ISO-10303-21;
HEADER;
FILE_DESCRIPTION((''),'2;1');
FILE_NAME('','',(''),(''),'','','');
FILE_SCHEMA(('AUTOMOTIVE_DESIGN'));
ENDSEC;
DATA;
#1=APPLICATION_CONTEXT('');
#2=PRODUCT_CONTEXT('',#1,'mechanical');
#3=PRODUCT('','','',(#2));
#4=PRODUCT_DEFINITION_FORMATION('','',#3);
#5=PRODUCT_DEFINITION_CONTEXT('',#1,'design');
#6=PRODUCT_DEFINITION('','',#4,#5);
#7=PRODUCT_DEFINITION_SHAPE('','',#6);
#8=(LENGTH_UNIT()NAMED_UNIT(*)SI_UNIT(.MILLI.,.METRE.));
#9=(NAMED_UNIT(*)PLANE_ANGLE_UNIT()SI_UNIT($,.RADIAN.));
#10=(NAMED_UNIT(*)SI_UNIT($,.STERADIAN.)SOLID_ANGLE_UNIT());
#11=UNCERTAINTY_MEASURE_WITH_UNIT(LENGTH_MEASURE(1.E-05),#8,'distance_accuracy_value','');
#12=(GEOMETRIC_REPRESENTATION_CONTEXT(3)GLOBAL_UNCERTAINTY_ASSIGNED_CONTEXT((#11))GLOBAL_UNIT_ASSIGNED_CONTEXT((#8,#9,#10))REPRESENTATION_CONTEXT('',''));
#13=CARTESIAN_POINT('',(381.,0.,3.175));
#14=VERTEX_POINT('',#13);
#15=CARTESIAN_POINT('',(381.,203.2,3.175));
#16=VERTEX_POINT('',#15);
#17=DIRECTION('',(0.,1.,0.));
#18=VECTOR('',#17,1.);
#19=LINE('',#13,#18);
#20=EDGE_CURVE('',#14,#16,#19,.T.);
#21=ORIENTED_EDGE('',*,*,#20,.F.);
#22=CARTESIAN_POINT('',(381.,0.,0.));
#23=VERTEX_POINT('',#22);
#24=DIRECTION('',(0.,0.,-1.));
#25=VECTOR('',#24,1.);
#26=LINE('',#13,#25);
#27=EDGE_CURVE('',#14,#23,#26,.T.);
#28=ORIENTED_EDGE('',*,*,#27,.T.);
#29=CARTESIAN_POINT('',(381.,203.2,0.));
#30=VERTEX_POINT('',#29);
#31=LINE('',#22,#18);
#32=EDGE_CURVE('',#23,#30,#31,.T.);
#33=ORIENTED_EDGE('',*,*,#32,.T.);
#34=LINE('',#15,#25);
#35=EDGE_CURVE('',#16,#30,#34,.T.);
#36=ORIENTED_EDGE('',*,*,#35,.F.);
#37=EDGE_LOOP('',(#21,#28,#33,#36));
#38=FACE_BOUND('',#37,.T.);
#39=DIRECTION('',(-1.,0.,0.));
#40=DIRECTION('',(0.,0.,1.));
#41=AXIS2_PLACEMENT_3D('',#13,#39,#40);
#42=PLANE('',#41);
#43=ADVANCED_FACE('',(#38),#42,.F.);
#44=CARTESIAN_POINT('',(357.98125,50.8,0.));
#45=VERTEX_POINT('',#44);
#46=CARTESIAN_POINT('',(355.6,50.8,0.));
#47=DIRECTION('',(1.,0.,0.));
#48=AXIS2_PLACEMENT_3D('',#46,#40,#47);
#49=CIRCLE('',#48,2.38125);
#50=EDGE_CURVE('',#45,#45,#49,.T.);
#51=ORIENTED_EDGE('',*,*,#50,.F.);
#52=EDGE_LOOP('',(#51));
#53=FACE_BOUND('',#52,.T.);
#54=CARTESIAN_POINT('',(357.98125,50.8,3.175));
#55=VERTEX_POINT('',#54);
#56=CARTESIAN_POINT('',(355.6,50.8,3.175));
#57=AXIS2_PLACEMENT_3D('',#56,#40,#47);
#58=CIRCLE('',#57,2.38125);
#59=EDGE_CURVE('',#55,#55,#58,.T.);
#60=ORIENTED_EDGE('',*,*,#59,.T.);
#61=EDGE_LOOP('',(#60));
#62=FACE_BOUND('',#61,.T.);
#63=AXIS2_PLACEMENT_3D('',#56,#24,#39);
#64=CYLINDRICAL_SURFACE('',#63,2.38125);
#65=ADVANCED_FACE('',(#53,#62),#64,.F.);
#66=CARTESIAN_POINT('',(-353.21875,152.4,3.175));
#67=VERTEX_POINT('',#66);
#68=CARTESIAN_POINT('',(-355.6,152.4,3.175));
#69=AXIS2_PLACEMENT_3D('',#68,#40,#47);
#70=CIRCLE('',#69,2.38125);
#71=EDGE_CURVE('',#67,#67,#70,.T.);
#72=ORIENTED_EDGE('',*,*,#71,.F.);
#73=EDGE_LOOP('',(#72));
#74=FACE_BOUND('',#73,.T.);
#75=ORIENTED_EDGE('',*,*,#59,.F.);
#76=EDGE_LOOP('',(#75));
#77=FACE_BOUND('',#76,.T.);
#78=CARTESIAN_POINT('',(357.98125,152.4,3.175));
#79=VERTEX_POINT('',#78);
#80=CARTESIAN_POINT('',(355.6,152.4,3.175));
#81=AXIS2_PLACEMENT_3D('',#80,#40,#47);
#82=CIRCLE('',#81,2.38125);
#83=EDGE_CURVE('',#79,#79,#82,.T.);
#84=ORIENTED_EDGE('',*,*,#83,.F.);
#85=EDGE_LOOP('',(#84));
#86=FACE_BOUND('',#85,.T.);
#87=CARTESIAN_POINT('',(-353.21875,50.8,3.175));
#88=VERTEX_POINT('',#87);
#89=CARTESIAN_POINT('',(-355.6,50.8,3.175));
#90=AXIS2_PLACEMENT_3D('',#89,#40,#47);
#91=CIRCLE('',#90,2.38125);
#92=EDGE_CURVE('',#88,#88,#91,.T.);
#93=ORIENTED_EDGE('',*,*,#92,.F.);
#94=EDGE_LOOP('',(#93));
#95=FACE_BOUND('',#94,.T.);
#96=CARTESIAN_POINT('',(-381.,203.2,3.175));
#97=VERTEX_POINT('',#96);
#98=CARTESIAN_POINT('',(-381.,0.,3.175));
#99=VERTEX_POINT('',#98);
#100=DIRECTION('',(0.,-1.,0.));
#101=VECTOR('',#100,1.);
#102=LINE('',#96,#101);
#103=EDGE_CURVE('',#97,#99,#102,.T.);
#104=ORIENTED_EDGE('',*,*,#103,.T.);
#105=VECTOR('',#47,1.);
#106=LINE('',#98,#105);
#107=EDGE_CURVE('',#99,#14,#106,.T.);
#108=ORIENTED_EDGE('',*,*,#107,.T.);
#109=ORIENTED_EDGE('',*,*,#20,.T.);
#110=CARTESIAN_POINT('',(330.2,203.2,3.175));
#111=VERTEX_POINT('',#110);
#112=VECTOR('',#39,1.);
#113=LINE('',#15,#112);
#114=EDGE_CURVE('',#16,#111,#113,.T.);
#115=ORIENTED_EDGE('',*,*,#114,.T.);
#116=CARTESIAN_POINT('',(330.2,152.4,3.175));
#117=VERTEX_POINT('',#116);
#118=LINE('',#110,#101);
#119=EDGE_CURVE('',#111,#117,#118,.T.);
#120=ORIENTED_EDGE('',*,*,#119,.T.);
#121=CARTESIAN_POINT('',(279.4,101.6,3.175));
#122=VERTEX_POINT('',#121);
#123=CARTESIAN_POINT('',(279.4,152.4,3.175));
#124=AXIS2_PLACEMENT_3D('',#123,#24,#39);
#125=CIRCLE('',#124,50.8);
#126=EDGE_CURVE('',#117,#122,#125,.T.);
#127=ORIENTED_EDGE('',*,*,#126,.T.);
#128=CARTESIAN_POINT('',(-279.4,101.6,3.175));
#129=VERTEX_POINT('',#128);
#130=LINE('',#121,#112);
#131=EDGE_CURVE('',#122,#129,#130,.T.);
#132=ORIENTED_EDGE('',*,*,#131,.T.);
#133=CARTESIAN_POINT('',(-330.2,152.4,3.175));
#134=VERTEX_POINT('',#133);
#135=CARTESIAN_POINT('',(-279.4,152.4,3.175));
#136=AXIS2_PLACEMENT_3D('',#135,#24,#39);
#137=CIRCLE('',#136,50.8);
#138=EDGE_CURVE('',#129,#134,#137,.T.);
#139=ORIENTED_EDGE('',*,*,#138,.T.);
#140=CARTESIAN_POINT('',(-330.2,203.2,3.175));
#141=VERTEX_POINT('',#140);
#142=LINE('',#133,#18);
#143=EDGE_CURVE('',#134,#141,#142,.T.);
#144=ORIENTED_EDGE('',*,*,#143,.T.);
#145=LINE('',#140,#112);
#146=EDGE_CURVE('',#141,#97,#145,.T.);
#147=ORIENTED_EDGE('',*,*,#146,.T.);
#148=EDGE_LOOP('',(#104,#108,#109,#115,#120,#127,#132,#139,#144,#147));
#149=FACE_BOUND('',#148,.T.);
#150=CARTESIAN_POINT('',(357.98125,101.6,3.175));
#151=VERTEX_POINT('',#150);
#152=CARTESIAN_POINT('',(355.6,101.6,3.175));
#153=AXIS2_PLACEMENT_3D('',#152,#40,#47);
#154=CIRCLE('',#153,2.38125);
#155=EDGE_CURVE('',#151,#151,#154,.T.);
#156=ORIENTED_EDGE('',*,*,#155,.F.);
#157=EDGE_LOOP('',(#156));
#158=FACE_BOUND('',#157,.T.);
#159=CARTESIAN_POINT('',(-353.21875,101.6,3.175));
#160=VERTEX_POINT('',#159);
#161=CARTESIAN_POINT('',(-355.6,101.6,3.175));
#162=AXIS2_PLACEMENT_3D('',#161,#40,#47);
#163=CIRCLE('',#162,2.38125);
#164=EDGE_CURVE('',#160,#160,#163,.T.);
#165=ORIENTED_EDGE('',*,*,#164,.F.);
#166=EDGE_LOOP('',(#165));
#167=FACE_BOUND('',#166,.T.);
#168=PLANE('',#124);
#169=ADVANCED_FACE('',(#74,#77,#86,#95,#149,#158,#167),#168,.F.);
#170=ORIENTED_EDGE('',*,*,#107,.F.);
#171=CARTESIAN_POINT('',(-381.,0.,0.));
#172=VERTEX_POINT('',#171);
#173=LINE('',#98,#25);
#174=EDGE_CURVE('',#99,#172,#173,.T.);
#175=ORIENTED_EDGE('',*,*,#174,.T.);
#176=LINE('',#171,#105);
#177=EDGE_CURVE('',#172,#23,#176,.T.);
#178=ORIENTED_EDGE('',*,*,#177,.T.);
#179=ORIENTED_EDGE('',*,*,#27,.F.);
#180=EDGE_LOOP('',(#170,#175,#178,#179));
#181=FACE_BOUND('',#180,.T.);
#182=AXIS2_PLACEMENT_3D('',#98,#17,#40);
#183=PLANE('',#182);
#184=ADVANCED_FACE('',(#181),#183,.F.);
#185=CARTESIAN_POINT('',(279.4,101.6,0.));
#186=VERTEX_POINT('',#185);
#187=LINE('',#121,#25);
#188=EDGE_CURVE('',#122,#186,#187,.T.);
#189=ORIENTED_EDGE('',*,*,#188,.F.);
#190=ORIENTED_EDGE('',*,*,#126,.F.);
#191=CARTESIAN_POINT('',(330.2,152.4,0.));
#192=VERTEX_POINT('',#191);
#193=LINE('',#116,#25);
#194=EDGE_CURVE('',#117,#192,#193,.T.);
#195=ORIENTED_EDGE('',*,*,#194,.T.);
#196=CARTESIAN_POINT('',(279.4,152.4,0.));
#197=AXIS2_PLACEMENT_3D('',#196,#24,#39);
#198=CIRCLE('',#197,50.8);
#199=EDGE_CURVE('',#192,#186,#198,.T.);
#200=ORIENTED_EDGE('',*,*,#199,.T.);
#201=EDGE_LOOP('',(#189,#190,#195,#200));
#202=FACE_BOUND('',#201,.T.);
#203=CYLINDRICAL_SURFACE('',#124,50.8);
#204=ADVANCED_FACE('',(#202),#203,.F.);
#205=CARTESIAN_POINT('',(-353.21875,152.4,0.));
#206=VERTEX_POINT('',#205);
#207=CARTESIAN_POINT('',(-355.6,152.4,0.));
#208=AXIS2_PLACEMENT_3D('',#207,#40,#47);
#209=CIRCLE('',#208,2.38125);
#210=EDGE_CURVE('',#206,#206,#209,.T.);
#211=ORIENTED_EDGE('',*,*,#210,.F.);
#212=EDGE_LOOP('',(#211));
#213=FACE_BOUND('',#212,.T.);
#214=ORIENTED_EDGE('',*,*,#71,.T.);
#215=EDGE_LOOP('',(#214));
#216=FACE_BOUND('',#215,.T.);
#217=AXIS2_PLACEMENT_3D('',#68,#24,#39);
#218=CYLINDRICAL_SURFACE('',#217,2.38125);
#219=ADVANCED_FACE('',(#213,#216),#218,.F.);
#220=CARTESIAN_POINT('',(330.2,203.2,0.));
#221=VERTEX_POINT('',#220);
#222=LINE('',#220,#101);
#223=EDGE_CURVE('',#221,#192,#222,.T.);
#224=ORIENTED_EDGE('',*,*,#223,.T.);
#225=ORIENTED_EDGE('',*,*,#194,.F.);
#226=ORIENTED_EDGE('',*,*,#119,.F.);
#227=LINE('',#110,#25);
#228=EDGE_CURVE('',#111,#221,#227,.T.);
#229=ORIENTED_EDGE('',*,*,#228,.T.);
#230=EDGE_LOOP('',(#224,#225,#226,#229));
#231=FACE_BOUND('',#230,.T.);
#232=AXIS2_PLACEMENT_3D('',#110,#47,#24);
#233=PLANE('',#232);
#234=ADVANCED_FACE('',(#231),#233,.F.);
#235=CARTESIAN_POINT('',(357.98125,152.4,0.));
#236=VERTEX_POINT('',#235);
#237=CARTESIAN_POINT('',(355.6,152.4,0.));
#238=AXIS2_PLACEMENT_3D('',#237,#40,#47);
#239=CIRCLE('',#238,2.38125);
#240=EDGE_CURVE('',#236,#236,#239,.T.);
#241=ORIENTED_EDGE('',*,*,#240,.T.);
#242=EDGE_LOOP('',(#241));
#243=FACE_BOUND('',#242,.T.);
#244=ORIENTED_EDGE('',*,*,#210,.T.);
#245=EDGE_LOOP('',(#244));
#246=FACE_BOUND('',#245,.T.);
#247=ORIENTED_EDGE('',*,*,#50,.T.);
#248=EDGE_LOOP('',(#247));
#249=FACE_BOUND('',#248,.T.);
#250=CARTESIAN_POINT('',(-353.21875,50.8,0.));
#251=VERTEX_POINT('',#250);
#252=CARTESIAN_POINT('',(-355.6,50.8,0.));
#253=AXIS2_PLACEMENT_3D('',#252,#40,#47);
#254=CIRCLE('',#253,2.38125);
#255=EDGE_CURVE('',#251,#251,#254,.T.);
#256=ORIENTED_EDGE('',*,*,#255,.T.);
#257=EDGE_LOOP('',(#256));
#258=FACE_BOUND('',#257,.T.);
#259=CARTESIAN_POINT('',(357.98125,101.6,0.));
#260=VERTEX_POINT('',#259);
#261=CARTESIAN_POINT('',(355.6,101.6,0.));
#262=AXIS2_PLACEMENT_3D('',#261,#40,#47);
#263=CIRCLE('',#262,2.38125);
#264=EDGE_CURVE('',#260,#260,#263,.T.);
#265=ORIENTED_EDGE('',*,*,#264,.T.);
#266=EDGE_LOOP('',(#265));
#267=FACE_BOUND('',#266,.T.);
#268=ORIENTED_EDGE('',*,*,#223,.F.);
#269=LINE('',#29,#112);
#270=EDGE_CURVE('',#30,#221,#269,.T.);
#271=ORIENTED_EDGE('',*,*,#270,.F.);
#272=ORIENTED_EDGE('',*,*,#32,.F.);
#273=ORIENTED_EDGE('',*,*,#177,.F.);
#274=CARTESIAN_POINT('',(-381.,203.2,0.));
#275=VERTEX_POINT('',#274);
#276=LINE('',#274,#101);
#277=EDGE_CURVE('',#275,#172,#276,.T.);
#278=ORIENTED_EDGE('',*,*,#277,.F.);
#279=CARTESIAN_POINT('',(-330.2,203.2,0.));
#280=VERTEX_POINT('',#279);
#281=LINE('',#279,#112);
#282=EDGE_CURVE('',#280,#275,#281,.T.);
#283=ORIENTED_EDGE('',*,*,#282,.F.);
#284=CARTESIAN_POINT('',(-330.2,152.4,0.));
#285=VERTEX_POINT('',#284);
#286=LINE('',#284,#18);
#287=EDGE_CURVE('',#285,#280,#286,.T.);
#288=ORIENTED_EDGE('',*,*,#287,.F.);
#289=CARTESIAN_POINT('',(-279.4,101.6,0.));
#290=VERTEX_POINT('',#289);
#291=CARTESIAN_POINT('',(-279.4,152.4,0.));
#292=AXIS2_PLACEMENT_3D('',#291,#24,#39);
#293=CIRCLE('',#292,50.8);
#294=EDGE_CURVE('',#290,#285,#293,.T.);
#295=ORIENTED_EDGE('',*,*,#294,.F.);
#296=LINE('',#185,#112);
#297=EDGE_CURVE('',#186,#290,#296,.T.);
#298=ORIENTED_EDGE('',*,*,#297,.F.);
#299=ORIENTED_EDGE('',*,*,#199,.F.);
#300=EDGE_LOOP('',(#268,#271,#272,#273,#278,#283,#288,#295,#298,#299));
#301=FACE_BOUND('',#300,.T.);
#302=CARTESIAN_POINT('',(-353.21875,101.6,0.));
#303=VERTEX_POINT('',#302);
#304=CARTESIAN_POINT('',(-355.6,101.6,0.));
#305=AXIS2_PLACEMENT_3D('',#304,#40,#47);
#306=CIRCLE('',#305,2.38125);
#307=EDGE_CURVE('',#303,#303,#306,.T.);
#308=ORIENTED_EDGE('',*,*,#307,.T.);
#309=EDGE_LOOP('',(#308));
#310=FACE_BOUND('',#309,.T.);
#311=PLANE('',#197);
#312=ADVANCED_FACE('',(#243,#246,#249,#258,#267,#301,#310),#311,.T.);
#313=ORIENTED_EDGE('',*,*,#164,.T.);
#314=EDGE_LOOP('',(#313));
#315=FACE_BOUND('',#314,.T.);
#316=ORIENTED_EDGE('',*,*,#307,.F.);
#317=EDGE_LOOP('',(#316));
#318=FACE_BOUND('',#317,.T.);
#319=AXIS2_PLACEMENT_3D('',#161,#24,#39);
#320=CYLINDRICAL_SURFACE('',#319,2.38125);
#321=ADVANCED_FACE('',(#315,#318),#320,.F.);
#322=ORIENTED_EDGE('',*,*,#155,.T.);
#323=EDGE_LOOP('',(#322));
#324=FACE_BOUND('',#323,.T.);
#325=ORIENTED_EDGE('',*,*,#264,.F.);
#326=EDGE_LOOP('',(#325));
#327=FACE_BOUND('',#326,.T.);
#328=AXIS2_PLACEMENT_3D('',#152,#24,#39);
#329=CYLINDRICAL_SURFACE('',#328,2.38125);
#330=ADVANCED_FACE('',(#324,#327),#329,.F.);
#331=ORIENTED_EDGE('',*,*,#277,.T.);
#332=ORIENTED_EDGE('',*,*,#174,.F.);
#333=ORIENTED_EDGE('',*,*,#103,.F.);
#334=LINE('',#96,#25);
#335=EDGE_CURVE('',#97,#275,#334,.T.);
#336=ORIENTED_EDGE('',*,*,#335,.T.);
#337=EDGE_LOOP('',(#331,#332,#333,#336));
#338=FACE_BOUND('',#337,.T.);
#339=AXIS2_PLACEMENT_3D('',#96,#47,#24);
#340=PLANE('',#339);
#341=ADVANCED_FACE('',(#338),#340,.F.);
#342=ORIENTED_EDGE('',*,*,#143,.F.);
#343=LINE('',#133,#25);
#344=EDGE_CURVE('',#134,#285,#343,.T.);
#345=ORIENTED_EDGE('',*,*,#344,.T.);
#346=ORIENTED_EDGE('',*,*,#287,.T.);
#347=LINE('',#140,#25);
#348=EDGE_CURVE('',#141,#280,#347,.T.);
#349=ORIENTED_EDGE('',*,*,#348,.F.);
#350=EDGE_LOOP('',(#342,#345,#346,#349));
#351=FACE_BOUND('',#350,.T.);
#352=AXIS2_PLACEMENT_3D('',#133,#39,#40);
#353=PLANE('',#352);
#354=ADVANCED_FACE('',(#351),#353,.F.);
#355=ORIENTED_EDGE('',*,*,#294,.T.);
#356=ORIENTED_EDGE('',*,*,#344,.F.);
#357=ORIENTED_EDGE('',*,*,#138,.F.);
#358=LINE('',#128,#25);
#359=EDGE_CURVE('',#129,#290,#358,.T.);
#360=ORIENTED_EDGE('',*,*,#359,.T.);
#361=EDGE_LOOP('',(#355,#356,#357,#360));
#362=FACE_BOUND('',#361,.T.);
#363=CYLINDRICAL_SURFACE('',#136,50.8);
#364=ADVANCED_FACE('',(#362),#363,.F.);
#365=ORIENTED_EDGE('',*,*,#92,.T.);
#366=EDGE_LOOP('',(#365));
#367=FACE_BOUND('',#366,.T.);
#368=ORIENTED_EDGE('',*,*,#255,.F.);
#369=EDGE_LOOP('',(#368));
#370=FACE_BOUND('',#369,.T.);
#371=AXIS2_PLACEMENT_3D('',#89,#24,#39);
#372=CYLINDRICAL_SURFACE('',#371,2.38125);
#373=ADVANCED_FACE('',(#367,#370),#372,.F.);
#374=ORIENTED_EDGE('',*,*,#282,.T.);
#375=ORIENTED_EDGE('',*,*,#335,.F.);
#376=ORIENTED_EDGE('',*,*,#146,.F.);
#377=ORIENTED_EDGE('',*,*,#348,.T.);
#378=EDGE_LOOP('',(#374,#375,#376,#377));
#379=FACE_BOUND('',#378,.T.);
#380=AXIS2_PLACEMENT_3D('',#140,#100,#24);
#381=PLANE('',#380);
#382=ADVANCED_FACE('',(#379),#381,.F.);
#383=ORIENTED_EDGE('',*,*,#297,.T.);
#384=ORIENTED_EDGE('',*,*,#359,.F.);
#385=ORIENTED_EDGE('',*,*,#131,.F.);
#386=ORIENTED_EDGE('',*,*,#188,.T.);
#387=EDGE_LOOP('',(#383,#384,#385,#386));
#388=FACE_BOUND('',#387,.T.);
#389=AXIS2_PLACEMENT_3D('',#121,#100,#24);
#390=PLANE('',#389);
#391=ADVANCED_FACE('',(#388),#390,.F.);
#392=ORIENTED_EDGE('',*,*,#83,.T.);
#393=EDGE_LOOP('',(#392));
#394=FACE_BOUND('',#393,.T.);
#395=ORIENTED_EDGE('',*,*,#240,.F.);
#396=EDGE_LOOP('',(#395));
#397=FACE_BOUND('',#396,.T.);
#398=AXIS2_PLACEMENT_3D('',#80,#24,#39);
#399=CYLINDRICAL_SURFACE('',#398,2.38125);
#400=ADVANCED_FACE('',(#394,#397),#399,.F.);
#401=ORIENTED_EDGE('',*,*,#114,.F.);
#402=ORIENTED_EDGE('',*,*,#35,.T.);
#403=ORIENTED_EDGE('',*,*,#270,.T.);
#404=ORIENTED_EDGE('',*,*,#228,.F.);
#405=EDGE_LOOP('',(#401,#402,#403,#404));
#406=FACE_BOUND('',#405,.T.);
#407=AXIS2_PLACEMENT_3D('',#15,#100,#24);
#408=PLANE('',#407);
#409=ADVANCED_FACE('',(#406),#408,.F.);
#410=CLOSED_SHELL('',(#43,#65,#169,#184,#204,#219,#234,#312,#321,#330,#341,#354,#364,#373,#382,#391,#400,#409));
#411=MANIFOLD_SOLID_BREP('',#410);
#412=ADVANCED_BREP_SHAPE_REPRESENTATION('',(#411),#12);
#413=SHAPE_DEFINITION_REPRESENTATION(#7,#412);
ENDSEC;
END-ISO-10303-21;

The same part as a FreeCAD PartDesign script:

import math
import FreeCAD as App
import Part
import Sketcher
Q = App.Units.Quantity

doc = App.newDocument("Part")
body = doc.addObject("PartDesign::Body", "Body")

# Sketch on XY plane
sketch1 = doc.addObject("Sketcher::SketchObject", "Sketch")
body.addObject(sketch1)
sketch1.AttachmentSupport = (doc.XY_Plane, [""])
sketch1.MapMode = "FlatFace"
sketch1.addGeometry([
    Part.LineSegment(App.Vector(-381, 0, 0), App.Vector(381, 0, 0)),  # 0
    Part.LineSegment(App.Vector(381, 0, 0), App.Vector(381, 203.2, 0)),  # 1
    Part.LineSegment(App.Vector(381, 203.2, 0), App.Vector(330.2, 203.2, 0)),  # 2
    Part.LineSegment(App.Vector(330.2, 203.2, 0), App.Vector(330.2, 152.4, 0)),  # 3
    Part.ArcOfCircle(Part.Circle(App.Vector(279.4, 152.4, 0), App.Vector(0, 0, 1), 50.8), math.radians(-90), math.radians(0)),  # 4
    Part.LineSegment(App.Vector(279.4, 101.6, 0), App.Vector(-279.4, 101.6, 0)),  # 5
    Part.ArcOfCircle(Part.Circle(App.Vector(-279.4, 152.4, 0), App.Vector(0, 0, 1), 50.8), math.radians(-180), math.radians(-90)),  # 6
    Part.LineSegment(App.Vector(-330.2, 152.4, 0), App.Vector(-330.2, 203.2, 0)),  # 7
    Part.LineSegment(App.Vector(-330.2, 203.2, 0), App.Vector(-381, 203.2, 0)),  # 8
    Part.LineSegment(App.Vector(-381, 203.2, 0), App.Vector(-381, 0, 0)),  # 9
    Part.Circle(App.Vector(-355.6, 50.8, 0), App.Vector(0, 0, 1), 2.4),  # 10
    Part.Circle(App.Vector(-355.6, 101.6, 0), App.Vector(0, 0, 1), 2.4),  # 11
    Part.Circle(App.Vector(355.6, 50.8, 0), App.Vector(0, 0, 1), 2.4),  # 12
    Part.Circle(App.Vector(355.6, 101.6, 0), App.Vector(0, 0, 1), 2.4),  # 13
    Part.Circle(App.Vector(-355.6, 152.4, 0), App.Vector(0, 0, 1), 2.4),  # 14
    Part.Circle(App.Vector(355.6, 152.4, 0), App.Vector(0, 0, 1), 2.4),  # 15
], False)
sketch1.addConstraint([
    Sketcher.Constraint("Coincident", 0, 2, 1, 1),
    Sketcher.Constraint("Coincident", 1, 2, 2, 1),
    Sketcher.Constraint("Coincident", 2, 2, 3, 1),
    Sketcher.Constraint("Tangent", 3, 2, 4, 2),
    Sketcher.Constraint("Tangent", 4, 1, 5, 1),
    Sketcher.Constraint("Tangent", 5, 2, 6, 2),
    Sketcher.Constraint("Tangent", 6, 1, 7, 1),
    Sketcher.Constraint("Coincident", 7, 2, 8, 1),
    Sketcher.Constraint("Coincident", 8, 2, 9, 1),
    Sketcher.Constraint("Coincident", 9, 2, 0, 1),
    Sketcher.Constraint("Horizontal", 0),
    Sketcher.Constraint("Vertical", 1),
    Sketcher.Constraint("Horizontal", 2),
    Sketcher.Constraint("Vertical", 3),
    Sketcher.Constraint("Horizontal", 5),
    Sketcher.Constraint("Vertical", 7),
    Sketcher.Constraint("Horizontal", 8),
    Sketcher.Constraint("Vertical", 9),
    Sketcher.Constraint("Equal", 4, 6),
    Sketcher.Constraint("Equal", 10, 11),
    Sketcher.Constraint("Equal", 11, 12),
    Sketcher.Constraint("Equal", 12, 13),
    Sketcher.Constraint("Equal", 13, 14),
    Sketcher.Constraint("Equal", 14, 15),
    Sketcher.Constraint("Symmetric", 0, 2, 9, 2, -1, 1),
    Sketcher.Constraint("Symmetric", 10, 3, 12, 3, -2),
    Sketcher.Constraint("Symmetric", 11, 3, 13, 3, -2),
    Sketcher.Constraint("Symmetric", 14, 3, 15, 3, -2),
    Sketcher.Constraint("Symmetric", 2, 2, 7, 2, -2),
    Sketcher.Constraint("Horizontal", 6, 3, 14, 3),
    Sketcher.Constraint("Horizontal", 13, 3, 4, 1),
    Sketcher.Constraint("Vertical", 10, 3, 11, 3),
    Sketcher.Constraint("Vertical", 11, 3, 14, 3),
    Sketcher.Constraint("Equal", 8, 3),
    Sketcher.Constraint("Radius", 4, Q("2 in")),
    Sketcher.Constraint("DistanceX", 0, 1, 0, 2, Q("30 in")),
    Sketcher.Constraint("DistanceX", 2, 2, 2, 1, Q("2 in")),
    Sketcher.Constraint("DistanceY", 1, 1, 1, 2, Q("8 in")),
    Sketcher.Constraint("Diameter", 10, Q("0.1875 in")),
    Sketcher.Constraint("DistanceX", 10, 3, -1, 1, Q("14 in")),
    Sketcher.Constraint("DistanceY", -1, 1, 10, 3, Q("2 in")),
])
pad1 = doc.addObject("PartDesign::Pad", "Pad")
body.addObject(pad1)
pad1.Profile = sketch1
pad1.Length = Q("0.125 in")

doc.recompute()
